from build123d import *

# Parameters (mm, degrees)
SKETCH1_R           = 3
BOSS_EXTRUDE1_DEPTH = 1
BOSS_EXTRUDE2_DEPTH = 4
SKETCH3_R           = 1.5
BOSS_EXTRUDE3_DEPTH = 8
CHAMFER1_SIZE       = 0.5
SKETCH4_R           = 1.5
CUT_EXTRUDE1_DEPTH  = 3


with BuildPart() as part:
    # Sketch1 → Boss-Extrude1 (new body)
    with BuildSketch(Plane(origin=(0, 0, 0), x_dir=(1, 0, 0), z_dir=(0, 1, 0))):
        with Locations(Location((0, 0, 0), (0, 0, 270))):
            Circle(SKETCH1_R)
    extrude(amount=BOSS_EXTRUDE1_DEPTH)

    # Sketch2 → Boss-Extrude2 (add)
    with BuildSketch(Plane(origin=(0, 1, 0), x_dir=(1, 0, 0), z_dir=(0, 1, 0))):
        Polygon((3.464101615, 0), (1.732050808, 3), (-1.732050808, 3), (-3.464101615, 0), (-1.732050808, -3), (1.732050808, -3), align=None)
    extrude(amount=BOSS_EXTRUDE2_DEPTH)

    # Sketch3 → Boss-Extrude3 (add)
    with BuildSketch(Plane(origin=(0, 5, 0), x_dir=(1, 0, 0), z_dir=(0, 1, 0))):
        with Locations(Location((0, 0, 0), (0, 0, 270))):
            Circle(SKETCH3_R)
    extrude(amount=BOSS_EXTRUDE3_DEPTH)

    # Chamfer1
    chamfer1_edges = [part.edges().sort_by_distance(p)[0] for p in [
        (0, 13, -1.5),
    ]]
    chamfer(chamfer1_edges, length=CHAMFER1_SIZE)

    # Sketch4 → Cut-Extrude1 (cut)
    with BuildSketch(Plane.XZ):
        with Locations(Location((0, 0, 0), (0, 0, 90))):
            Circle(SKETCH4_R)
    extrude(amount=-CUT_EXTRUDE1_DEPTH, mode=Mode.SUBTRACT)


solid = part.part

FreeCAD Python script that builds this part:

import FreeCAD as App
import Part
import Sketcher
from FreeCAD import Vector
Q = App.Units.Quantity


def edges_at(feature, points):
    """Names of the edges that pass closest to the given points."""
    edges = feature.Shape.Edges
    near = lambda p: min(range(len(edges)), key=lambda i: edges[i].distToShape(Part.Vertex(*p))[0])
    return sorted({f"Edge{near(p) + 1}" for p in points})


def add_polygon(sketch, points):
    """Adds a closed chain of lines whose ends are joined by coincident constraints."""
    first, n = sketch.GeometryCount, len(points)
    for a, b in zip(points, points[1:] + points[:1]):
        sketch.addGeometry(Part.LineSegment(App.Vector(*a, 0), App.Vector(*b, 0)), False)
    for i in range(n):
        sketch.addConstraint(Sketcher.Constraint("Coincident", first + i, 2, first + (i + 1) % n, 1))

doc = App.newDocument("Part")
body = doc.addObject("PartDesign::Body", "Body")

# Sketch on XZ plane
sketch1 = body.newObject("Sketcher::SketchObject", "Sketch")
sketch1.AttachmentSupport = (doc.getObject("XZ_Plane"), [""])
sketch1.MapMode = "FlatFace"
sketch1.addGeometry(Part.Circle(Vector(0, 0, 0), Vector(0, 0, 1), 3), False)
sketch1.addConstraint([
    Sketcher.Constraint("Coincident", 0, 3, -1, 1),
    Sketcher.Constraint("Diameter", 0, Q("6 mm")),
])
pad1 = body.newObject("PartDesign::Pad", "Pad")
pad1.Profile = sketch1
pad1.Length = 1
pad1.Reversed = True

# Sketch on XZ plane
sketch2 = body.newObject("Sketcher::SketchObject", "Sketch001")
sketch2.AttachmentSupport = (doc.getObject("XZ_Plane"), [""])
sketch2.MapMode = "FlatFace"
sketch2.AttachmentOffset = App.Placement(Vector(0, 0, -1), App.Rotation())
add_polygon(sketch2, [(3.5, 0), (1.7, -3), (-1.7, -3), (-3.5, 0), (-1.7, 3), (1.7, 3)])  # lines 0-5
sketch2.addConstraint([
    Sketcher.Constraint("Horizontal", 1),
    Sketcher.Constraint("Horizontal", 4),
    Sketcher.Constraint("Symmetric", 0, 2, 3, 2, -1, 1),
    Sketcher.Constraint("Symmetric", 2, 2, 5, 2, -1, 1),
    Sketcher.Constraint("PointOnObject", 2, 2, -1),
    Sketcher.Constraint("Parallel", 2, 5),
    Sketcher.Constraint("Vertical", 1, 2, 3, 2),
    Sketcher.Constraint("Angle", 0, Q("-120 deg")),
    Sketcher.Constraint("DistanceY", 0, 2, -1, 1, Q("3 mm")),
    Sketcher.Constraint("DistanceX", 1, 2, 1, 1, Q("3.464102 mm")),
])
pad2 = body.newObject("PartDesign::Pad", "Pad001")
pad2.Profile = sketch2
pad2.Length = 4
pad2.Reversed = True

# Sketch on XZ plane
sketch3 = body.newObject("Sketcher::SketchObject", "Sketch002")
sketch3.AttachmentSupport = (doc.getObject("XZ_Plane"), [""])
sketch3.MapMode = "FlatFace"
sketch3.AttachmentOffset = App.Placement(Vector(0, 0, -5), App.Rotation())
sketch3.addGeometry(Part.Circle(Vector(0, 0, 0), Vector(0, 0, 1), 1.5), False)
sketch3.addConstraint([
    Sketcher.Constraint("Coincident", 0, 3, -1, 1),
    Sketcher.Constraint("Diameter", 0, Q("3 mm")),
])
pad3 = body.newObject("PartDesign::Pad", "Pad002")
pad3.Profile = sketch3
pad3.Length = 8
pad3.Reversed = True
doc.recompute()

chamfer = body.newObject("PartDesign::Chamfer", "Chamfer")
chamfer.Base = (pad3, edges_at(pad3, [(0, 13, -1.5)]))
chamfer.Size = 0.5

# Sketch on XZ plane
sketch4 = body.newObject("Sketcher::SketchObject", "Sketch003")
sketch4.AttachmentSupport = (doc.getObject("XZ_Plane"), [""])
sketch4.MapMode = "FlatFace"
sketch4.addGeometry(Part.Circle(Vector(0, 0, 0), Vector(0, 0, 1), 1.5), False)
sketch4.addConstraint([
    Sketcher.Constraint("Coincident", 0, 3, -1, 1),
    Sketcher.Constraint("Diameter", 0, Q("3 mm")),
])
pocket1 = body.newObject("PartDesign::Pocket", "Pocket")
pocket1.Profile = sketch4
pocket1.Length = 3

doc.recompute()
